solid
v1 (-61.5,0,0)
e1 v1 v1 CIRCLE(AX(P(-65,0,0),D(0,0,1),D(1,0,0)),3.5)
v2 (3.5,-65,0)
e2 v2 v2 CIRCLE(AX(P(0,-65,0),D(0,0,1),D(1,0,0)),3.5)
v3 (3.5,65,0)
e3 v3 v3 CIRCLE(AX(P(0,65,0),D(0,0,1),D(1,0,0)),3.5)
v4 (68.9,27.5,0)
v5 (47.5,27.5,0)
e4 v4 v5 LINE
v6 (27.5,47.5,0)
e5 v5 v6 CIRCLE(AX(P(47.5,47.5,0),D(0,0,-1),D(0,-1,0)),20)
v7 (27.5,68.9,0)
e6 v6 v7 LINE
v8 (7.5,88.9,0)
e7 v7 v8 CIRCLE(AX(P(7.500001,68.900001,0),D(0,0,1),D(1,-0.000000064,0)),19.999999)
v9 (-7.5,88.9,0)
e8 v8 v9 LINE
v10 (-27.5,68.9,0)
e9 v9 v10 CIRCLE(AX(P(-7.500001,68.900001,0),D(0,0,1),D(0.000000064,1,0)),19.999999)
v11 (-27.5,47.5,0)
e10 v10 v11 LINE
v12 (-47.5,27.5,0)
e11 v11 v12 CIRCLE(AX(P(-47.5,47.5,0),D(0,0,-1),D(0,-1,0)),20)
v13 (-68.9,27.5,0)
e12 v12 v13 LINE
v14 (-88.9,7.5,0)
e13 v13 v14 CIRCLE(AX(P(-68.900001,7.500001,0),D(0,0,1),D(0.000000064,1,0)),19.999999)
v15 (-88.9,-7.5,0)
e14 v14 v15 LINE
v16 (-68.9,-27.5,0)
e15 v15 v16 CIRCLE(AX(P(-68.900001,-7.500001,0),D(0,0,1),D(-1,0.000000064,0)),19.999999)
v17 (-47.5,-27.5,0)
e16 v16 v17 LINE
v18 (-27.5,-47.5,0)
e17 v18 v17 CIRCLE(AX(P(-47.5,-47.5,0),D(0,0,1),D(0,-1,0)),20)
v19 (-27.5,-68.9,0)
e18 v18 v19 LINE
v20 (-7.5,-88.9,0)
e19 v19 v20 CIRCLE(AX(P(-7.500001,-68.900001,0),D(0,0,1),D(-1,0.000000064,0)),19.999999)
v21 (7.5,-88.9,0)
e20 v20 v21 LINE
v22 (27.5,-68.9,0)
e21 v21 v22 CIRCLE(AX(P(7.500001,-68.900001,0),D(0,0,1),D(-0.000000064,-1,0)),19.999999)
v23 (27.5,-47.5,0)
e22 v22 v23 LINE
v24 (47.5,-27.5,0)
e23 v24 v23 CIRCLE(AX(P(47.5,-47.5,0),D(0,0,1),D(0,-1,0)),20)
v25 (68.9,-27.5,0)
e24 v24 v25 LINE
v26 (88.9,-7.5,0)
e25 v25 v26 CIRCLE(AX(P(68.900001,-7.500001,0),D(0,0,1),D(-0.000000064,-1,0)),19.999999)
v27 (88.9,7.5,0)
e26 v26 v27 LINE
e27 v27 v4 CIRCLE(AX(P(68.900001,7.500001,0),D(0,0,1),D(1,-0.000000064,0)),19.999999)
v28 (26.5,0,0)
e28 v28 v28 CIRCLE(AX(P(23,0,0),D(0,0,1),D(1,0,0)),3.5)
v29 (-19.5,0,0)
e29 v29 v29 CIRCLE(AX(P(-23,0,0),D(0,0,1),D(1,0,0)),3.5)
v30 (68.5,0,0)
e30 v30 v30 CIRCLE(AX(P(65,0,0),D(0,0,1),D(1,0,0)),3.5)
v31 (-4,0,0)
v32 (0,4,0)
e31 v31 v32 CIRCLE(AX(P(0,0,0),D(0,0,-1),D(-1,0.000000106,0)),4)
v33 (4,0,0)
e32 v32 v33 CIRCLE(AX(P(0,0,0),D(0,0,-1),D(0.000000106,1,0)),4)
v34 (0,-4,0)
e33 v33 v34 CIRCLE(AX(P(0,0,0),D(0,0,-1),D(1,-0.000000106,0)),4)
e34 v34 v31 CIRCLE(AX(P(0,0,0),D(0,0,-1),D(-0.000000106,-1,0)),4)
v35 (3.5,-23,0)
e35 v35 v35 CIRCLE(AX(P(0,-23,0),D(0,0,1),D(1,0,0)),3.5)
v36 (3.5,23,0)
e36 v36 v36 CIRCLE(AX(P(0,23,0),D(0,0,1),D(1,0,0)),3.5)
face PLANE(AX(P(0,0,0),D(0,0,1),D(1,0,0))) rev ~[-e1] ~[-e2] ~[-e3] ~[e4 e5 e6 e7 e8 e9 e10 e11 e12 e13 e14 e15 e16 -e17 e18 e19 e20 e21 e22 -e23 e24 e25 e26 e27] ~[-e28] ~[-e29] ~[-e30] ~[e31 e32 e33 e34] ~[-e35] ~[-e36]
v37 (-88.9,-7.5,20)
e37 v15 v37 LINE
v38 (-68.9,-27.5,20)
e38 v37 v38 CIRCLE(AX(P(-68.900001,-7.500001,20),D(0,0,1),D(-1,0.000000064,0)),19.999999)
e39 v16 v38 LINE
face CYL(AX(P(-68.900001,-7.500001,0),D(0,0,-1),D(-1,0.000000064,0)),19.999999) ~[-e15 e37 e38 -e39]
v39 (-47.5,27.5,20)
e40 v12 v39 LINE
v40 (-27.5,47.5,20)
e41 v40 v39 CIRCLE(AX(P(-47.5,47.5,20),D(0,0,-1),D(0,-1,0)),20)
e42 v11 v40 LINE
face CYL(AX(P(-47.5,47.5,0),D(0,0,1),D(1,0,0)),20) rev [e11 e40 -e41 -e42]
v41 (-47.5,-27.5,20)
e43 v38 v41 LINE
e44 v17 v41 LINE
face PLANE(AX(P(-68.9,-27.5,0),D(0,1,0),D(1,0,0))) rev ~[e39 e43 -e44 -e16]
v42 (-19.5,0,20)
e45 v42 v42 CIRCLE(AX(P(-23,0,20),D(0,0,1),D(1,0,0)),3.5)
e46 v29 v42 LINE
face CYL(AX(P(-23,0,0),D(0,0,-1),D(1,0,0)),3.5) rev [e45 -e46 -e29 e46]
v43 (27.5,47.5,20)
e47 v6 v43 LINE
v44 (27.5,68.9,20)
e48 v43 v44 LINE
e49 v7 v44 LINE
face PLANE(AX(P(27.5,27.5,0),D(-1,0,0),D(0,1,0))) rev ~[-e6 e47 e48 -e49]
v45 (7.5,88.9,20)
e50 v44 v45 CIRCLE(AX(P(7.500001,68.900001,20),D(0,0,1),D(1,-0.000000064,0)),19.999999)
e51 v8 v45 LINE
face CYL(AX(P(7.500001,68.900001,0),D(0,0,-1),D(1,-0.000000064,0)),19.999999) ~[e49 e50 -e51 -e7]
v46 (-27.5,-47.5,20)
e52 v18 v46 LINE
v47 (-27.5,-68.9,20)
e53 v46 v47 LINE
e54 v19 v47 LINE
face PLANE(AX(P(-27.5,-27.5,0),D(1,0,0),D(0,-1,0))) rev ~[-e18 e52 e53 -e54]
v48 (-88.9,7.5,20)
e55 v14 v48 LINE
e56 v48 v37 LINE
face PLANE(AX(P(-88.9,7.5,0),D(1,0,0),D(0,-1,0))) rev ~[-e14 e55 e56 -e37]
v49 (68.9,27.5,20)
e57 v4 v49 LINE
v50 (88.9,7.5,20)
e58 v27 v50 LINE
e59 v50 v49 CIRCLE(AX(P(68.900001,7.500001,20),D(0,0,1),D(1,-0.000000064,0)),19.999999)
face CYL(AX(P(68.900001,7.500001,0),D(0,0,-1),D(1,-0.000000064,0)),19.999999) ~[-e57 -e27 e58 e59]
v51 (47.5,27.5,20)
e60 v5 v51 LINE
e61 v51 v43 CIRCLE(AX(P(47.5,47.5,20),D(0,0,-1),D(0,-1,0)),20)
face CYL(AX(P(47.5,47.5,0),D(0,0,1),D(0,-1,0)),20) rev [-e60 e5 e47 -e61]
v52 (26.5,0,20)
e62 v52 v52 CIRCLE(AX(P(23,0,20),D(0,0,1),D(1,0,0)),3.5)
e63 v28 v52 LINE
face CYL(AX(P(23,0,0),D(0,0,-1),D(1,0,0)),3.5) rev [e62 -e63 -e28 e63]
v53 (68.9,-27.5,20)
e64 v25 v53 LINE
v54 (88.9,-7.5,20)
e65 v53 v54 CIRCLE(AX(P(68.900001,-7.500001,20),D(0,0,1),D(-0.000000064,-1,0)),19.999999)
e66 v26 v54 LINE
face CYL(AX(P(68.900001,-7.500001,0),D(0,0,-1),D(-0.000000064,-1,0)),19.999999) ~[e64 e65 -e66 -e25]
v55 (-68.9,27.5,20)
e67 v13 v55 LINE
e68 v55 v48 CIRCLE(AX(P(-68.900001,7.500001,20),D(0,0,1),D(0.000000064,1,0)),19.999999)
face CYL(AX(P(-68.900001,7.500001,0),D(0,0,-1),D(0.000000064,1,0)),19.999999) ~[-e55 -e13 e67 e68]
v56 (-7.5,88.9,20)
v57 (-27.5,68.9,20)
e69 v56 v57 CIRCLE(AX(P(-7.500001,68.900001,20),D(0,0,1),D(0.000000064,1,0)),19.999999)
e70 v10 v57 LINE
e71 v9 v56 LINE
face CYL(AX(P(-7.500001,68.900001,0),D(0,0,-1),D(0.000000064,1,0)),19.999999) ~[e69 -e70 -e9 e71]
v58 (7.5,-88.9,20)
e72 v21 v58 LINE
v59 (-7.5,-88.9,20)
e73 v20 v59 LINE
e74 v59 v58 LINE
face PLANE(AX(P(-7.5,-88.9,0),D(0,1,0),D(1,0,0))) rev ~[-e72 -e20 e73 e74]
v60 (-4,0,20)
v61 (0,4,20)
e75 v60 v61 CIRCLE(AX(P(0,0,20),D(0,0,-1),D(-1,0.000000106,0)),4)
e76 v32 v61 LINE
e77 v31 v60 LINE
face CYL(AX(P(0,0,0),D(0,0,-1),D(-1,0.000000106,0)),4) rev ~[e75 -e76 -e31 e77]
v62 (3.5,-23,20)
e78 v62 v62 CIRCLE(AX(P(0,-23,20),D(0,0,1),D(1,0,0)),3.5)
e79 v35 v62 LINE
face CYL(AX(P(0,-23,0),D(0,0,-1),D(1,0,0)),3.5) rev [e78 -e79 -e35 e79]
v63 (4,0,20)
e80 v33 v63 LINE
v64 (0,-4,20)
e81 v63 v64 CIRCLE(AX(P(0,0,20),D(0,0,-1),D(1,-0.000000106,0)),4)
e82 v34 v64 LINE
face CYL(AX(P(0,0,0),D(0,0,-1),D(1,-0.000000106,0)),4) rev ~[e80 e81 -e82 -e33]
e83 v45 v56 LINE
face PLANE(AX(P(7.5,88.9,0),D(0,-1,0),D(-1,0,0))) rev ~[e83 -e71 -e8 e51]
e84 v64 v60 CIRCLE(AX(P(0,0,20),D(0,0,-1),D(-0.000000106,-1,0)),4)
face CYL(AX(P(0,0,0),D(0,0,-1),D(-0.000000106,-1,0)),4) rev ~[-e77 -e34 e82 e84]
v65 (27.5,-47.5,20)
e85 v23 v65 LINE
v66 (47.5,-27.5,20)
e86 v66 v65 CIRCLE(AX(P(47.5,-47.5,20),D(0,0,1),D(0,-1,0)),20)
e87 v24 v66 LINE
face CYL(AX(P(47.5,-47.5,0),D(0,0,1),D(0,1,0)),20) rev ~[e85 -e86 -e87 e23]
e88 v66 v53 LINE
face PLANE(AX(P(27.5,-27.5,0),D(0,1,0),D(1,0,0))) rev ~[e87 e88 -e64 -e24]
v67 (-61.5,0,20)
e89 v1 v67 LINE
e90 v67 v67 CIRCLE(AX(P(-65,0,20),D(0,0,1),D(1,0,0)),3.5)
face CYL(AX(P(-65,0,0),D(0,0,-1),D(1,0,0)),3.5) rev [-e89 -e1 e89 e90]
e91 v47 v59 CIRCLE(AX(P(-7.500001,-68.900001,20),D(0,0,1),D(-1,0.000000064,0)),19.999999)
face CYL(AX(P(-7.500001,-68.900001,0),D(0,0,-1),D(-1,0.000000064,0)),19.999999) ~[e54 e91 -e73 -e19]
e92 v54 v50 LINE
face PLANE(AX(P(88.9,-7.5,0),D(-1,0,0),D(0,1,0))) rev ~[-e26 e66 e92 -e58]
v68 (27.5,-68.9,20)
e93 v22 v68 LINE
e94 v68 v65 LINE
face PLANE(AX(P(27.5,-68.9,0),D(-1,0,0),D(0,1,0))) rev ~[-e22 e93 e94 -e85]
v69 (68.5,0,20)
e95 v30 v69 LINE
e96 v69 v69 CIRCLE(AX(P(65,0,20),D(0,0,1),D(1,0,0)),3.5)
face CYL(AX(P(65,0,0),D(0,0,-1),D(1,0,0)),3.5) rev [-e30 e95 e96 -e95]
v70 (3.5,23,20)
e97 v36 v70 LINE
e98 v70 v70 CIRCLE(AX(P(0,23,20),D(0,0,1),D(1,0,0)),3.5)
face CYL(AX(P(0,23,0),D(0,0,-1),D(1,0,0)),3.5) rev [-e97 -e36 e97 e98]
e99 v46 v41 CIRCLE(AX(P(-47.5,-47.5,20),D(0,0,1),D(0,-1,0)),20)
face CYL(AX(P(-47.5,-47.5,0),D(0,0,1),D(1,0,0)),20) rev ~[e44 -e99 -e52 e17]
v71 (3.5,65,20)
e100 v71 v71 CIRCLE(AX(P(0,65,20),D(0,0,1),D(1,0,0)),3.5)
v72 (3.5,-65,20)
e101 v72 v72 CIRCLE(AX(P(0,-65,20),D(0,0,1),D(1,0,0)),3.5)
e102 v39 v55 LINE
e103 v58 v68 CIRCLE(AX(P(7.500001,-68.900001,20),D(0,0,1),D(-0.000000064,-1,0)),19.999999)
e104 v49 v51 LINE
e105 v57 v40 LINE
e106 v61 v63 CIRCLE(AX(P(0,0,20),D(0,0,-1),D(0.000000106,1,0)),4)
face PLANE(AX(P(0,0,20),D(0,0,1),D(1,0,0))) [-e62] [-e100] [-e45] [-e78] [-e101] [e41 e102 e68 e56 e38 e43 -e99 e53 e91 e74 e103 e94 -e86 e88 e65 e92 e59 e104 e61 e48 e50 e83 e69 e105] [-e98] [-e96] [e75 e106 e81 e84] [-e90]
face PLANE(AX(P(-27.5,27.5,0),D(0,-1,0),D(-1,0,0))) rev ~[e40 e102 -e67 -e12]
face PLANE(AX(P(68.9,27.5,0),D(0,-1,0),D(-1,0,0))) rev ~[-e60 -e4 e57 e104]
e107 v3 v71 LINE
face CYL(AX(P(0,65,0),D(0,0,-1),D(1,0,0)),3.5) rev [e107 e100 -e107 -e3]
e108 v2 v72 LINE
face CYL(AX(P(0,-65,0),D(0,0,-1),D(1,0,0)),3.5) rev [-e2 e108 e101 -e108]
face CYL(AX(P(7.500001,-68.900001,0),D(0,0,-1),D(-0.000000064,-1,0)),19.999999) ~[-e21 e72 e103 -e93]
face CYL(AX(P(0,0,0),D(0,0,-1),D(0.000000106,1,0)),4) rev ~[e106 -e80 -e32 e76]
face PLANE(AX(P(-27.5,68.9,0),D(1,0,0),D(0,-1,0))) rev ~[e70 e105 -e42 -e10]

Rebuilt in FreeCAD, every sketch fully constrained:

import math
import FreeCAD as App
import Part
import Sketcher
Q = App.Units.Quantity


def edges_at(feature, points):
    """Names of the edges that pass closest to the given points."""
    edges = feature.Shape.Edges
    near = lambda p: min(range(len(edges)), key=lambda i: edges[i].distToShape(Part.Vertex(*p))[0])
    return sorted({f"Edge{near(p) + 1}" for p in points})

doc = App.newDocument("Part")
body = doc.addObject("PartDesign::Body", "Body")

sketch1 = body.newObject("Sketcher::SketchObject", "Sketch")
sketch1.AttachmentSupport = (doc.getObject("XY_Plane"), [""])
sketch1.MapMode = "FlatFace"
sketch1.addGeometry([
    Part.LineSegment(App.Vector(68.9, 27.5, 0), App.Vector(27.5, 27.5, 0)),
    Part.LineSegment(App.Vector(27.5, 27.5, 0), App.Vector(27.5, 68.9, 0)),
    Part.ArcOfCircle(Part.Circle(App.Vector(7.5, 68.9, 0), App.Vector(0, 0, 1), 20), math.radians(0), math.radians(90)),
    Part.LineSegment(App.Vector(7.5, 88.9, 0), App.Vector(-7.5, 88.9, 0)),
    Part.ArcOfCircle(Part.Circle(App.Vector(-7.5, 68.9, 0), App.Vector(0, 0, 1), 20), math.radians(90), math.radians(180)),
    Part.LineSegment(App.Vector(-27.5, 68.9, 0), App.Vector(-27.5, 27.5, 0)),
    Part.LineSegment(App.Vector(-27.5, 27.5, 0), App.Vector(-68.9, 27.5, 0)),
    Part.ArcOfCircle(Part.Circle(App.Vector(-68.9, 7.5, 0), App.Vector(0, 0, 1), 20), math.radians(90), math.radians(180)),
    Part.LineSegment(App.Vector(-88.9, 7.5, 0), App.Vector(-88.9, -7.5, 0)),
    Part.ArcOfCircle(Part.Circle(App.Vector(-68.9, -7.5, 0), App.Vector(0, 0, 1), 20), math.radians(180), math.radians(270)),
    Part.LineSegment(App.Vector(-68.9, -27.5, 0), App.Vector(-27.5, -27.5, 0)),
    Part.LineSegment(App.Vector(-27.5, -27.5, 0), App.Vector(-27.5, -68.9, 0)),
    Part.ArcOfCircle(Part.Circle(App.Vector(-7.5, -68.9, 0), App.Vector(0, 0, 1), 20), math.radians(180), math.radians(270)),
    Part.LineSegment(App.Vector(-7.5, -88.9, 0), App.Vector(7.5, -88.9, 0)),
    Part.ArcOfCircle(Part.Circle(App.Vector(7.5, -68.9, 0), App.Vector(0, 0, 1), 20), math.radians(-90), math.radians(0)),
    Part.LineSegment(App.Vector(27.5, -68.9, 0), App.Vector(27.5, -27.5, 0)),
    Part.LineSegment(App.Vector(27.5, -27.5, 0), App.Vector(68.9, -27.5, 0)),
    Part.ArcOfCircle(Part.Circle(App.Vector(68.9, -7.5, 0), App.Vector(0, 0, 1), 20), math.radians(-90), math.radians(0)),
    Part.LineSegment(App.Vector(88.9, -7.5, 0), App.Vector(88.9, 7.5, 0)),
    Part.ArcOfCircle(Part.Circle(App.Vector(68.9, 7.5, 0), App.Vector(0, 0, 1), 20), math.radians(0), math.radians(90)),
    Part.Circle(App.Vector(0, -65, 0), App.Vector(0, 0, 1), 3.5),
    Part.Circle(App.Vector(0, -23, 0), App.Vector(0, 0, 1), 3.5),
    Part.Circle(App.Vector(-65, 0, 0), App.Vector(0, 0, 1), 3.5),
    Part.Circle(App.Vector(-23, 0, 0), App.Vector(0, 0, 1), 3.5),
    Part.ArcOfCircle(Part.Circle(App.Vector(0, 0, 0), App.Vector(0, 0, 1), 4), math.radians(0), math.radians(90)),
    Part.ArcOfCircle(Part.Circle(App.Vector(0, 0, 0), App.Vector(0, 0, 1), 4), math.radians(-90), math.radians(0)),
    Part.ArcOfCircle(Part.Circle(App.Vector(0, 0, 0), App.Vector(0, 0, 1), 4), math.radians(-180), math.radians(-90)),
    Part.ArcOfCircle(Part.Circle(App.Vector(0, 0, 0), App.Vector(0, 0, 1), 4), math.radians(90), math.radians(180)),
    Part.Circle(App.Vector(23, 0, 0), App.Vector(0, 0, 1), 3.5),
    Part.Circle(App.Vector(0, 23, 0), App.Vector(0, 0, 1), 3.5),
    Part.Circle(App.Vector(65, 0, 0), App.Vector(0, 0, 1), 3.5),
    Part.Circle(App.Vector(0, 65, 0), App.Vector(0, 0, 1), 3.5),
], False)
sketch1.addConstraint([
    Sketcher.Constraint("Coincident", 0, 2, 1, 1),
    Sketcher.Constraint("Tangent", 1, 2, 2, 1),
    Sketcher.Constraint("Tangent", 2, 2, 3, 1),
    Sketcher.Constraint("Tangent", 3, 2, 4, 1),
    Sketcher.Constraint("Tangent", 4, 2, 5, 1),
    Sketcher.Constraint("Coincident", 5, 2, 6, 1),
    Sketcher.Constraint("Tangent", 6, 2, 7, 1),
    Sketcher.Constraint("Tangent", 7, 2, 8, 1),
    Sketcher.Constraint("Tangent", 8, 2, 9, 1),
    Sketcher.Constraint("Tangent", 9, 2, 10, 1),
    Sketcher.Constraint("Coincident", 10, 2, 11, 1),
    Sketcher.Constraint("Tangent", 11, 2, 12, 1),
    Sketcher.Constraint("Tangent", 12, 2, 13, 1),
    Sketcher.Constraint("Tangent", 13, 2, 14, 1),
    Sketcher.Constraint("Tangent", 14, 2, 15, 1),
    Sketcher.Constraint("Coincident", 15, 2, 16, 1),
    Sketcher.Constraint("Tangent", 16, 2, 17, 1),
    Sketcher.Constraint("Tangent", 17, 2, 18, 1),
    Sketcher.Constraint("Tangent", 18, 2, 19, 1),
    Sketcher.Constraint("Tangent", 19, 2, 0, 1),
    Sketcher.Constraint("Tangent", 24, 1, 25, 2),
    Sketcher.Constraint("Tangent", 25, 1, 26, 2),
    Sketcher.Constraint("Tangent", 26, 1, 27, 2),
    Sketcher.Constraint("Tangent", 27, 1, 24, 2),
    Sketcher.Constraint("Horizontal", 0),
    Sketcher.Constraint("Vertical", 1),
    Sketcher.Constraint("Horizontal", 3),
    Sketcher.Constraint("Vertical", 5),
    Sketcher.Constraint("Horizontal", 6),
    Sketcher.Constraint("Vertical", 8),
    Sketcher.Constraint("Horizontal", 10),
    Sketcher.Constraint("Vertical", 11),
    Sketcher.Constraint("Horizontal", 13),
    Sketcher.Constraint("Vertical", 15),
    Sketcher.Constraint("Horizontal", 16),
    Sketcher.Constraint("Vertical", 18),
    Sketcher.Constraint("Coincident", 24, 3, -1, 1),
    Sketcher.Constraint("Equal", 2, 4),
    Sketcher.Constraint("Equal", 4, 7),
    Sketcher.Constraint("Equal", 7, 9),
    Sketcher.Constraint("Equal", 9, 12),
    Sketcher.Constraint("Equal", 12, 14),
    Sketcher.Constraint("Equal", 14, 17),
    Sketcher.Constraint("Equal", 17, 19),
    Sketcher.Constraint("Equal", 20, 21),
    Sketcher.Constraint("Equal", 21, 22),
    Sketcher.Constraint("Equal", 22, 23),
    Sketcher.Constraint("Equal", 24, 25),
    Sketcher.Constraint("Equal", 23, 28),
    Sketcher.Constraint("Equal", 28, 29),
    Sketcher.Constraint("Equal", 29, 30),
    Sketcher.Constraint("Equal", 30, 31),
    Sketcher.Constraint("Symmetric", 2, 3, 12, 3, -1, 1),
    Sketcher.Constraint("Symmetric", 7, 3, 17, 3, -1, 1),
    Sketcher.Constraint("Symmetric", 23, 3, 28, 3, -1, 1),
    Sketcher.Constraint("Symmetric", 21, 3, 29, 3, -1, 1),
    Sketcher.Constraint("Symmetric", 22, 3, 30, 3, -1, 1),
    Sketcher.Constraint("Symmetric", 20, 3, 31, 3, -1, 1),
    Sketcher.Constraint("Symmetric", 0, 2, 5, 2, -2),
    Sketcher.Constraint("Symmetric", 10, 2, 15, 2, -2),
    Sketcher.Constraint("PointOnObject", 20, 3, -2),
    Sketcher.Constraint("PointOnObject", 21, 3, -2),
    Sketcher.Constraint("PointOnObject", 22, 3, -1),
    Sketcher.Constraint("PointOnObject", 23, 3, -1),
    Sketcher.Constraint("PointOnObject", 24, 1, -1),
    Sketcher.Constraint("PointOnObject", 25, 1, -2),
    Sketcher.Constraint("PointOnObject", 26, 1, -1),
    Sketcher.Constraint("PointOnObject", 27, 1, -2),
    Sketcher.Constraint("Equal", 16, 1),
    Sketcher.Constraint("Equal", 13, 8),
    Sketcher.Constraint("Diameter", 20, Q("7 mm")),
    Sketcher.Constraint("Radius", 2, Q("19.999999 mm")),
    Sketcher.Constraint("Radius", 24, Q("4 mm")),
    Sketcher.Constraint("DistanceX", 3, 2, 3, 1, Q("15 mm")),
    Sketcher.Constraint("DistanceX", 0, 2, 0, 1, Q("41.4 mm")),
    Sketcher.Constraint("DistanceY", 20, 3, -1, 1, Q("65 mm")),
    Sketcher.Constraint("DistanceY", 21, 3, -1, 1, Q("23 mm")),
    Sketcher.Constraint("DistanceX", 22, 3, -1, 1, Q("65 mm")),
    Sketcher.Constraint("DistanceX", 23, 3, -1, 1, Q("23 mm")),
])
pad1 = body.newObject("PartDesign::Pad", "Pad")
pad1.Profile = sketch1
pad1.Length = 20
doc.recompute()

fillet = body.newObject("PartDesign::Fillet", "Fillet")
fillet.Base = (pad1, edges_at(pad1, [
    (27.5, 27.5, 10),
    (27.5, -27.5, 10),
    (-27.5, -27.5, 10),
    (-27.5, 27.5, 10),
]))
fillet.Radius = 20

doc.recompute()
